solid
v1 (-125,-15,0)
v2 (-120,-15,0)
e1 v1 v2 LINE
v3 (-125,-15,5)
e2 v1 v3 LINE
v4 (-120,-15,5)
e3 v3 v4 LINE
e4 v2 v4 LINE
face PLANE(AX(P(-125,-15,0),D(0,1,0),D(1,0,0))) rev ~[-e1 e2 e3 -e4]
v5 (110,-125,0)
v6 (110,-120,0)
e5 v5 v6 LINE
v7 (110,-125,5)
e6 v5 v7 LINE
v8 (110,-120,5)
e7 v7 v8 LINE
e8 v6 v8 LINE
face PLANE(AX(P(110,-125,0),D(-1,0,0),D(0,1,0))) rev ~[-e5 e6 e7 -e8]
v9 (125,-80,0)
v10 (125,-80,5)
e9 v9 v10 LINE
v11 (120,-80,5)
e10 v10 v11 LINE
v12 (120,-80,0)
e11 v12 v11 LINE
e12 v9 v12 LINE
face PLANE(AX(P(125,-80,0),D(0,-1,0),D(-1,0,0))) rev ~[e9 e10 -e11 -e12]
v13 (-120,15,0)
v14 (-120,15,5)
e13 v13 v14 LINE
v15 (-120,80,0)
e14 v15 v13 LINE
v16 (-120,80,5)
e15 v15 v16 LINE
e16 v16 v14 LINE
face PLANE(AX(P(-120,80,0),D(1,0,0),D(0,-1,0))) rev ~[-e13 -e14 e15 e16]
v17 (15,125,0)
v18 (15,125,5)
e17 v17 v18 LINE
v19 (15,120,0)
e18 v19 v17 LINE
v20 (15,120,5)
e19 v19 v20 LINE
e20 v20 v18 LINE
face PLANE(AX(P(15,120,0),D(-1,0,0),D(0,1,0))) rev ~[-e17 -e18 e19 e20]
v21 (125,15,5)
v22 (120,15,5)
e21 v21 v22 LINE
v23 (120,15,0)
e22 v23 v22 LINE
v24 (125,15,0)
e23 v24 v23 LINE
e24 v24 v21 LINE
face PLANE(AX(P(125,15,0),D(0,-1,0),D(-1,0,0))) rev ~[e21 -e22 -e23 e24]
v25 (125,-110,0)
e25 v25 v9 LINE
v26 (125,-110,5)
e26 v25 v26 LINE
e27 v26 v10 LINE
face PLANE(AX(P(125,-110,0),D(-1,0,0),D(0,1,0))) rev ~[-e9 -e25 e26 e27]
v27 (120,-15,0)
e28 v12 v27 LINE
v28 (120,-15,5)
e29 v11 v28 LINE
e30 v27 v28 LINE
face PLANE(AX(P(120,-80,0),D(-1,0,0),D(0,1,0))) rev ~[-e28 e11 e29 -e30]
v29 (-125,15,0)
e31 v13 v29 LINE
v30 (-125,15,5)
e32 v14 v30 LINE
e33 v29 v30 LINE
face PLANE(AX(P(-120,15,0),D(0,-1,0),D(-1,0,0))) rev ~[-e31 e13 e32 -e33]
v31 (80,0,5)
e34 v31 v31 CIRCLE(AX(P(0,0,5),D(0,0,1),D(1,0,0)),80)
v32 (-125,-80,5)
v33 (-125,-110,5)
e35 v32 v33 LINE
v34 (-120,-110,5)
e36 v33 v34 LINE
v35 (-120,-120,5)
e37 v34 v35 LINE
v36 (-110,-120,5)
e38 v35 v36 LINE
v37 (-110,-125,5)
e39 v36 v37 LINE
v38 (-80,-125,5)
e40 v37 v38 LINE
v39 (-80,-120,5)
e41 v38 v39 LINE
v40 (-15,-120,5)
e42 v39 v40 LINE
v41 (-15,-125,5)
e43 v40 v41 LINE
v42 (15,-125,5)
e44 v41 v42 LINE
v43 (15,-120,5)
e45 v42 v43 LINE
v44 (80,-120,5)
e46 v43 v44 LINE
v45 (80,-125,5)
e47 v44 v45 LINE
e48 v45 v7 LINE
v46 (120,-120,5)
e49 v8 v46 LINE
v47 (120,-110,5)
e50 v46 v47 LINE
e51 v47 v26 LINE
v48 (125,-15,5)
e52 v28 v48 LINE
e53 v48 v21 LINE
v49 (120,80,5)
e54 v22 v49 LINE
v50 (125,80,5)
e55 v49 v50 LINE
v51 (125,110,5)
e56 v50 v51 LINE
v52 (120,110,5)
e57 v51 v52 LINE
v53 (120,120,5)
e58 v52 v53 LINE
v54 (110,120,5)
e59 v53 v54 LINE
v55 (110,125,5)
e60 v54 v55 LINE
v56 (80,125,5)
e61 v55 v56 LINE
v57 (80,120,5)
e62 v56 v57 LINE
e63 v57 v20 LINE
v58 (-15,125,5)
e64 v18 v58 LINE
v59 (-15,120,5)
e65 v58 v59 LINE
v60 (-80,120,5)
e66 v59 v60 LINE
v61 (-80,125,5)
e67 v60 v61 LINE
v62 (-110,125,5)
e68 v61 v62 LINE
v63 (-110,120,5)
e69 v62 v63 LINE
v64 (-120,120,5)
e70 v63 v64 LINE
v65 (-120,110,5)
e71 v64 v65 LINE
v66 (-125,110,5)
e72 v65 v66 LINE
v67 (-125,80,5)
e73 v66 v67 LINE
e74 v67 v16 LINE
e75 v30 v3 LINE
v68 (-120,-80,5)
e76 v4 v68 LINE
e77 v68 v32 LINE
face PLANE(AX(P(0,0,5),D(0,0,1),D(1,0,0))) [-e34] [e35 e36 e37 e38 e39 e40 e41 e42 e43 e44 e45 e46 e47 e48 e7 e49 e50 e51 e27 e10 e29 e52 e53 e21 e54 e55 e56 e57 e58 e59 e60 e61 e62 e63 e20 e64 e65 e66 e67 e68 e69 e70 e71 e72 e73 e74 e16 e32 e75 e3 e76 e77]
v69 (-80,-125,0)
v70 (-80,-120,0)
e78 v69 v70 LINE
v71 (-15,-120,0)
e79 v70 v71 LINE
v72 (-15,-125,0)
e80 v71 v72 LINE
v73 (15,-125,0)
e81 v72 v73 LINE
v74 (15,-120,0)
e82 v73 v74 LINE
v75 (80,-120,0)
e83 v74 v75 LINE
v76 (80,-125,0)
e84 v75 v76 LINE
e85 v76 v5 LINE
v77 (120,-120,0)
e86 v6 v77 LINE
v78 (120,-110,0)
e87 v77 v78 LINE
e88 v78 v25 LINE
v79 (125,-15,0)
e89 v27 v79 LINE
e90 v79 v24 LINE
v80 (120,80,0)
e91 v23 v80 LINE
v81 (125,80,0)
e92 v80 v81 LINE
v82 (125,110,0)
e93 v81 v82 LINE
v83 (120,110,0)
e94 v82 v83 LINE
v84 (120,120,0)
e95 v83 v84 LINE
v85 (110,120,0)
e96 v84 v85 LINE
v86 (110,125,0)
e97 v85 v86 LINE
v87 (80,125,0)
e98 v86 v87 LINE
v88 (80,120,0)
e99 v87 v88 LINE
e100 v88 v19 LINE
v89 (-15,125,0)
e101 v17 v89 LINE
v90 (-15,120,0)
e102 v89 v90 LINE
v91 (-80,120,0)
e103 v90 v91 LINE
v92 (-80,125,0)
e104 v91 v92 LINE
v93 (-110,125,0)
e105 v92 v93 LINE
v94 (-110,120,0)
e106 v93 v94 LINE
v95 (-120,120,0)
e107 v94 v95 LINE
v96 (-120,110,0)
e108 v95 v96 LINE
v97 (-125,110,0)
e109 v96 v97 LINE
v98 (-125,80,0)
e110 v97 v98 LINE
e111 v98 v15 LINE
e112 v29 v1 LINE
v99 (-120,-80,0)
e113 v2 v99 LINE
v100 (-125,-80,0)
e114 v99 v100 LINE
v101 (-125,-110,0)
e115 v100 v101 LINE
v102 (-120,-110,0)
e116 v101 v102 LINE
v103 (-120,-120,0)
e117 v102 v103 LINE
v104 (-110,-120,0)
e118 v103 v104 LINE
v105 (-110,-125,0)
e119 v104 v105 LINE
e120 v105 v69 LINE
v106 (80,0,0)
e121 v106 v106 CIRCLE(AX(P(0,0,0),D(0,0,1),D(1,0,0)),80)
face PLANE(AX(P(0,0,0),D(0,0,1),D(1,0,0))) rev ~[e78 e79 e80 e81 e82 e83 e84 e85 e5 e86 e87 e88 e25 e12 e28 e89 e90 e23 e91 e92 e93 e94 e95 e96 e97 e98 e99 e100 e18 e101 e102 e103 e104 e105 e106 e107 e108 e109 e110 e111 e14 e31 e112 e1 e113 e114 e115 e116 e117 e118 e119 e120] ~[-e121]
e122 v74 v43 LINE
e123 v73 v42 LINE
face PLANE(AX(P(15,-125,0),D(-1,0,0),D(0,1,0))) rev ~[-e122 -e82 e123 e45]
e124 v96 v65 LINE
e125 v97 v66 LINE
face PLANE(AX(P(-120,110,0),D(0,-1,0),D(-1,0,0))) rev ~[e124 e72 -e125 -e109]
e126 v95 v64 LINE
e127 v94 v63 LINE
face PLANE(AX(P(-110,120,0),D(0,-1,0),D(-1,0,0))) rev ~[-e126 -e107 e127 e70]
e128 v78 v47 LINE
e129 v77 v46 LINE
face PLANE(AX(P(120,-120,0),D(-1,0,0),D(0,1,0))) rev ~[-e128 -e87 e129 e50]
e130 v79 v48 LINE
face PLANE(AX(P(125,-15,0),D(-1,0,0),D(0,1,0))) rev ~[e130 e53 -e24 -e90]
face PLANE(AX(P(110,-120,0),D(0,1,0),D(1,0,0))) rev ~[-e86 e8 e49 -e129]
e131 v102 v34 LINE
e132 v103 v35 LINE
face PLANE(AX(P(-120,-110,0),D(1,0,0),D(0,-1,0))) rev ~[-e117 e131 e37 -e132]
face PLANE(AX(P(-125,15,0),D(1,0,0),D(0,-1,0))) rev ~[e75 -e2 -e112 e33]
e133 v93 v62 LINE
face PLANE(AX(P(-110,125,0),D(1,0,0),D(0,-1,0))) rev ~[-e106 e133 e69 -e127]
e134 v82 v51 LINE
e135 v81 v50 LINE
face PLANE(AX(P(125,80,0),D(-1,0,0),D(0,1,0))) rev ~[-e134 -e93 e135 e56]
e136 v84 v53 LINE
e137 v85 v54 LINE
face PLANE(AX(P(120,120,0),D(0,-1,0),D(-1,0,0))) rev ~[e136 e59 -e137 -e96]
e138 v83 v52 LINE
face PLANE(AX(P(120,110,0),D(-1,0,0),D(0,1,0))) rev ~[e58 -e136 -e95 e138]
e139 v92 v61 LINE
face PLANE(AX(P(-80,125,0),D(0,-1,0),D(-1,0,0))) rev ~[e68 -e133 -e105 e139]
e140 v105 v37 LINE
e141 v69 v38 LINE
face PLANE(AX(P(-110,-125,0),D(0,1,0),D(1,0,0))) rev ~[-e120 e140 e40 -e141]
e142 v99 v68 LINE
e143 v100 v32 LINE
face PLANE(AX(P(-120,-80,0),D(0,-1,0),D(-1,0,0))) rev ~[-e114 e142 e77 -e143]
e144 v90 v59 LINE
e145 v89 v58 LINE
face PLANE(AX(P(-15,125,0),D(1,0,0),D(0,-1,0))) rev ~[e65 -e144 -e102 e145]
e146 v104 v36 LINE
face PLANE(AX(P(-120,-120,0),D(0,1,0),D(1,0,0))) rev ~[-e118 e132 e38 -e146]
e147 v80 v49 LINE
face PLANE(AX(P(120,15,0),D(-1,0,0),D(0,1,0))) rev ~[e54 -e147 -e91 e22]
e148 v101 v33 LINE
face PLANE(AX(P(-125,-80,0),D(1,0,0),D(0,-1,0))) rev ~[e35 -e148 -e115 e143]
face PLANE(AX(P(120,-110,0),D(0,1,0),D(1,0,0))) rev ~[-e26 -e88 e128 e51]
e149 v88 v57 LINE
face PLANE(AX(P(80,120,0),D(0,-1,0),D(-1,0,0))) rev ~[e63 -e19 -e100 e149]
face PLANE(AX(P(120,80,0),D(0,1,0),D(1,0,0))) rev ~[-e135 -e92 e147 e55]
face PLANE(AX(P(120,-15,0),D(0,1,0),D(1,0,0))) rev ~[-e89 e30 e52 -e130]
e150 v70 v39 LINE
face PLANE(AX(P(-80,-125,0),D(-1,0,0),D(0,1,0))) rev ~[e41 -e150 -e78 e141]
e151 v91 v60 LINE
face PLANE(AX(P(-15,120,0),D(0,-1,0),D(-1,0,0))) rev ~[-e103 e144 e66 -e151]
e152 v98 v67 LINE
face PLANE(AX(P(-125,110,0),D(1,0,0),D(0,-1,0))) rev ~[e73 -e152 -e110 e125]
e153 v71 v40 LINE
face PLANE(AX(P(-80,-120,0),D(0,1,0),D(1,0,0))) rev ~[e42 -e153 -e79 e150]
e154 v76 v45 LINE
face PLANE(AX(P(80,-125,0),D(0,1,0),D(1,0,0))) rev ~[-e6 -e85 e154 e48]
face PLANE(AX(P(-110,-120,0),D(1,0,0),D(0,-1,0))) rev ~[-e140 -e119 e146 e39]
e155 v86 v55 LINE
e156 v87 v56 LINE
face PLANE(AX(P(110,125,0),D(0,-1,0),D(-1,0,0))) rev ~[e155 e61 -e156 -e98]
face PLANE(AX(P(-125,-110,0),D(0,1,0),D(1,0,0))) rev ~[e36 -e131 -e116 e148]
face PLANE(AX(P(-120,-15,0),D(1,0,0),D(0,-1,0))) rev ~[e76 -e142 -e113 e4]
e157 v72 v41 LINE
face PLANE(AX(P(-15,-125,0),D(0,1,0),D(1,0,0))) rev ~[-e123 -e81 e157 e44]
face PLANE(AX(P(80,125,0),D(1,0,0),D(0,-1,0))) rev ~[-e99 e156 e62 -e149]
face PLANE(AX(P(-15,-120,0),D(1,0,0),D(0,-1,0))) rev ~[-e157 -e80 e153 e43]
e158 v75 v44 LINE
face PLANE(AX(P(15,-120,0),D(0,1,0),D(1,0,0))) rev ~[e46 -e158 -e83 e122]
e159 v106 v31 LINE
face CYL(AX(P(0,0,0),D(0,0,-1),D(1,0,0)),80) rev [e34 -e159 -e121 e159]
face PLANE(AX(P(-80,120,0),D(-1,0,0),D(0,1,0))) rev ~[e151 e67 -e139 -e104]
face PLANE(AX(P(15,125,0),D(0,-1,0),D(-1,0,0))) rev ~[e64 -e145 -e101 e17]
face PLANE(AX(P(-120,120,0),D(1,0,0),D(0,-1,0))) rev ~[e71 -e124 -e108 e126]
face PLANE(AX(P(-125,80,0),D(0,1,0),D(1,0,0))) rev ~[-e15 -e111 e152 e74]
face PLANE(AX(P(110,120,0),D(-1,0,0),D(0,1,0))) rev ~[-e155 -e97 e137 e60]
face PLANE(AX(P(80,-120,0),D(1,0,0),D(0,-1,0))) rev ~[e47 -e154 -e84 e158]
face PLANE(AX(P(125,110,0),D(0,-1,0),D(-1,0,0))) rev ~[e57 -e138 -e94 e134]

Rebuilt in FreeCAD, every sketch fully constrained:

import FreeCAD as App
import Part
import Sketcher

V = App.Vector
Q = App.Units.Quantity

doc = App.newDocument("Part")
params = doc.addObject("Spreadsheet::Sheet", "Params")
for row, (alias, value) in enumerate([
    ("sketch1_diameter", "160 mm"),
    ("sketch1_width", "10 mm"),
    ("sketch1_width2", "5 mm"),
    ("sketch1_width3", "30 mm"),
    ("sketch1_width4", "65 mm"),
    ("pad1_length", "5 mm"),
], start=1):
    params.set(f"A{row}", alias)
    params.set(f"B{row}", "=" + value)
    params.setAlias(f"B{row}", alias)

body = doc.addObject("PartDesign::Body", "Body")

# Sketch on XY plane
sketch1 = body.newObject("Sketcher::SketchObject", "Sketch")
sketch1.AttachmentSupport = (doc.getObject("XY_Plane"), [""])
sketch1.MapMode = "FlatFace"
sketch1.addGeometry(Part.LineSegment(V(-110, 120, 0), V(-120, 120, 0)), False)
sketch1.addGeometry(Part.LineSegment(V(-120, 120, 0), V(-120, 110, 0)), False)
sketch1.addGeometry(Part.LineSegment(V(-120, 110, 0), V(-125, 110, 0)), False)
sketch1.addGeometry(Part.LineSegment(V(-125, 110, 0), V(-125, 80, 0)), False)
sketch1.addGeometry(Part.LineSegment(V(-125, 80, 0), V(-120, 80, 0)), False)
sketch1.addGeometry(Part.LineSegment(V(-120, 80, 0), V(-120, 15, 0)), False)
sketch1.addGeometry(Part.LineSegment(V(-120, 15, 0), V(-125, 15, 0)), False)
sketch1.addGeometry(Part.LineSegment(V(-125, 15, 0), V(-125, -15, 0)), False)
sketch1.addGeometry(Part.LineSegment(V(-125, -15, 0), V(-120, -15, 0)), False)
sketch1.addGeometry(Part.LineSegment(V(-120, -15, 0), V(-120, -80, 0)), False)
sketch1.addGeometry(Part.LineSegment(V(-120, -80, 0), V(-125, -80, 0)), False)
sketch1.addGeometry(Part.LineSegment(V(-125, -80, 0), V(-125, -110, 0)), False)
sketch1.addGeometry(Part.LineSegment(V(-125, -110, 0), V(-120, -110, 0)), False)
sketch1.addGeometry(Part.LineSegment(V(-120, -110, 0), V(-120, -120, 0)), False)
sketch1.addGeometry(Part.LineSegment(V(-120, -120, 0), V(-110, -120, 0)), False)
sketch1.addGeometry(Part.LineSegment(V(-110, -120, 0), V(-110, -125, 0)), False)
sketch1.addGeometry(Part.LineSegment(V(-110, -125, 0), V(-80, -125, 0)), False)
sketch1.addGeometry(Part.LineSegment(V(-80, -125, 0), V(-80, -120, 0)), False)
sketch1.addGeometry(Part.LineSegment(V(-80, -120, 0), V(-15, -120, 0)), False)
sketch1.addGeometry(Part.LineSegment(V(-15, -120, 0), V(-15, -125, 0)), False)
sketch1.addGeometry(Part.LineSegment(V(-15, -125, 0), V(15, -125, 0)), False)
sketch1.addGeometry(Part.LineSegment(V(15, -125, 0), V(15, -120, 0)), False)
sketch1.addGeometry(Part.LineSegment(V(15, -120, 0), V(80, -120, 0)), False)
sketch1.addGeometry(Part.LineSegment(V(80, -120, 0), V(80, -125, 0)), False)
sketch1.addGeometry(Part.LineSegment(V(80, -125, 0), V(110, -125, 0)), False)
sketch1.addGeometry(Part.LineSegment(V(110, -125, 0), V(110, -120, 0)), False)
sketch1.addGeometry(Part.LineSegment(V(110, -120, 0), V(120, -120, 0)), False)
sketch1.addGeometry(Part.LineSegment(V(120, -120, 0), V(120, -110, 0)), False)
sketch1.addGeometry(Part.LineSegment(V(120, -110, 0), V(125, -110, 0)), False)
sketch1.addGeometry(Part.LineSegment(V(125, -110, 0), V(125, -80, 0)), False)
sketch1.addGeometry(Part.LineSegment(V(125, -80, 0), V(120, -80, 0)), False)
sketch1.addGeometry(Part.LineSegment(V(120, -80, 0), V(120, -15, 0)), False)
sketch1.addGeometry(Part.LineSegment(V(120, -15, 0), V(125, -15, 0)), False)
sketch1.addGeometry(Part.LineSegment(V(125, -15, 0), V(125, 15, 0)), False)
sketch1.addGeometry(Part.LineSegment(V(125, 15, 0), V(120, 15, 0)), False)
sketch1.addGeometry(Part.LineSegment(V(120, 15, 0), V(120, 80, 0)), False)
sketch1.addGeometry(Part.LineSegment(V(120, 80, 0), V(125, 80, 0)), False)
sketch1.addGeometry(Part.LineSegment(V(125, 80, 0), V(125, 110, 0)), False)
sketch1.addGeometry(Part.LineSegment(V(125, 110, 0), V(120, 110, 0)), False)
sketch1.addGeometry(Part.LineSegment(V(120, 110, 0), V(120, 120, 0)), False)
sketch1.addGeometry(Part.LineSegment(V(120, 120, 0), V(110, 120, 0)), False)
sketch1.addGeometry(Part.LineSegment(V(110, 120, 0), V(110, 125, 0)), False)
sketch1.addGeometry(Part.LineSegment(V(110, 125, 0), V(80, 125, 0)), False)
sketch1.addGeometry(Part.LineSegment(V(80, 125, 0), V(80, 120, 0)), False)
sketch1.addGeometry(Part.LineSegment(V(80, 120, 0), V(15, 120, 0)), False)
sketch1.addGeometry(Part.LineSegment(V(15, 120, 0), V(15, 125, 0)), False)
sketch1.addGeometry(Part.LineSegment(V(15, 125, 0), V(-15, 125, 0)), False)
sketch1.addGeometry(Part.LineSegment(V(-15, 125, 0), V(-15, 120, 0)), False)
sketch1.addGeometry(Part.LineSegment(V(-15, 120, 0), V(-80, 120, 0)), False)
sketch1.addGeometry(Part.LineSegment(V(-80, 120, 0), V(-80, 125, 0)), False)
sketch1.addGeometry(Part.LineSegment(V(-80, 125, 0), V(-110, 125, 0)), False)
sketch1.addGeometry(Part.LineSegment(V(-110, 125, 0), V(-110, 120, 0)), False)
sketch1.addGeometry(Part.Circle(V(0, 0, 0), V(0, 0, 1), 80), False)
sketch1.addConstraint(Sketcher.Constraint("Coincident", 0, 2, 1, 1))
sketch1.addConstraint(Sketcher.Constraint("Coincident", 1, 2, 2, 1))
sketch1.addConstraint(Sketcher.Constraint("Coincident", 2, 2, 3, 1))
sketch1.addConstraint(Sketcher.Constraint("Coincident", 3, 2, 4, 1))
sketch1.addConstraint(Sketcher.Constraint("Coincident", 4, 2, 5, 1))
sketch1.addConstraint(Sketcher.Constraint("Coincident", 5, 2, 6, 1))
sketch1.addConstraint(Sketcher.Constraint("Coincident", 6, 2, 7, 1))
sketch1.addConstraint(Sketcher.Constraint("Coincident", 7, 2, 8, 1))
sketch1.addConstraint(Sketcher.Constraint("Coincident", 8, 2, 9, 1))
sketch1.addConstraint(Sketcher.Constraint("Coincident", 9, 2, 10, 1))
sketch1.addConstraint(Sketcher.Constraint("Coincident", 10, 2, 11, 1))
sketch1.addConstraint(Sketcher.Constraint("Coincident", 11, 2, 12, 1))
sketch1.addConstraint(Sketcher.Constraint("Coincident", 12, 2, 13, 1))
sketch1.addConstraint(Sketcher.Constraint("Coincident", 13, 2, 14, 1))
sketch1.addConstraint(Sketcher.Constraint("Coincident", 14, 2, 15, 1))
sketch1.addConstraint(Sketcher.Constraint("Coincident", 15, 2, 16, 1))
sketch1.addConstraint(Sketcher.Constraint("Coincident", 16, 2, 17, 1))
sketch1.addConstraint(Sketcher.Constraint("Coincident", 17, 2, 18, 1))
sketch1.addConstraint(Sketcher.Constraint("Coincident", 18, 2, 19, 1))
sketch1.addConstraint(Sketcher.Constraint("Coincident", 19, 2, 20, 1))
sketch1.addConstraint(Sketcher.Constraint("Coincident", 20, 2, 21, 1))
sketch1.addConstraint(Sketcher.Constraint("Coincident", 21, 2, 22, 1))
sketch1.addConstraint(Sketcher.Constraint("Coincident", 22, 2, 23, 1))
sketch1.addConstraint(Sketcher.Constraint("Coincident", 23, 2, 24, 1))
sketch1.addConstraint(Sketcher.Constraint("Coincident", 24, 2, 25, 1))
sketch1.addConstraint(Sketcher.Constraint("Coincident", 25, 2, 26, 1))
sketch1.addConstraint(Sketcher.Constraint("Coincident", 26, 2, 27, 1))
sketch1.addConstraint(Sketcher.Constraint("Coincident", 27, 2, 28, 1))
sketch1.addConstraint(Sketcher.Constraint("Coincident", 28, 2, 29, 1))
sketch1.addConstraint(Sketcher.Constraint("Coincident", 29, 2, 30, 1))
sketch1.addConstraint(Sketcher.Constraint("Coincident", 30, 2, 31, 1))
sketch1.addConstraint(Sketcher.Constraint("Coincident", 31, 2, 32, 1))
sketch1.addConstraint(Sketcher.Constraint("Coincident", 32, 2, 33, 1))
sketch1.addConstraint(Sketcher.Constraint("Coincident", 33, 2, 34, 1))
sketch1.addConstraint(Sketcher.Constraint("Coincident", 34, 2, 35, 1))
sketch1.addConstraint(Sketcher.Constraint("Coincident", 35, 2, 36, 1))
sketch1.addConstraint(Sketcher.Constraint("Coincident", 36, 2, 37, 1))
sketch1.addConstraint(Sketcher.Constraint("Coincident", 37, 2, 38, 1))
sketch1.addConstraint(Sketcher.Constraint("Coincident", 38, 2, 39, 1))
sketch1.addConstraint(Sketcher.Constraint("Coincident", 39, 2, 40, 1))
sketch1.addConstraint(Sketcher.Constraint("Coincident", 40, 2, 41, 1))
sketch1.addConstraint(Sketcher.Constraint("Coincident", 41, 2, 42, 1))
sketch1.addConstraint(Sketcher.Constraint("Coincident", 42, 2, 43, 1))
sketch1.addConstraint(Sketcher.Constraint("Coincident", 43, 2, 44, 1))
sketch1.addConstraint(Sketcher.Constraint("Coincident", 44, 2, 45, 1))
sketch1.addConstraint(Sketcher.Constraint("Coincident", 45, 2, 46, 1))
sketch1.addConstraint(Sketcher.Constraint("Coincident", 46, 2, 47, 1))
sketch1.addConstraint(Sketcher.Constraint("Coincident", 47, 2, 48, 1))
sketch1.addConstraint(Sketcher.Constraint("Coincident", 48, 2, 49, 1))
sketch1.addConstraint(Sketcher.Constraint("Coincident", 49, 2, 50, 1))
sketch1.addConstraint(Sketcher.Constraint("Coincident", 50, 2, 51, 1))
sketch1.addConstraint(Sketcher.Constraint("Coincident", 51, 2, 0, 1))
sketch1.addConstraint(Sketcher.Constraint("Horizontal", 0))
sketch1.addConstraint(Sketcher.Constraint("Vertical", 1))
sketch1.addConstraint(Sketcher.Constraint("Horizontal", 2))
sketch1.addConstraint(Sketcher.Constraint("Vertical", 3))
sketch1.addConstraint(Sketcher.Constraint("Horizontal", 4))
sketch1.addConstraint(Sketcher.Constraint("Vertical", 5))
sketch1.addConstraint(Sketcher.Constraint("Horizontal", 6))
sketch1.addConstraint(Sketcher.Constraint("Vertical", 7))
sketch1.addConstraint(Sketcher.Constraint("Horizontal", 8))
sketch1.addConstraint(Sketcher.Constraint("Vertical", 9))
sketch1.addConstraint(Sketcher.Constraint("Horizontal", 10))
sketch1.addConstraint(Sketcher.Constraint("Vertical", 11))
sketch1.addConstraint(Sketcher.Constraint("Horizontal", 12))
sketch1.addConstraint(Sketcher.Constraint("Vertical", 13))
sketch1.addConstraint(Sketcher.Constraint("Horizontal", 14))
sketch1.addConstraint(Sketcher.Constraint("Vertical", 15))
sketch1.addConstraint(Sketcher.Constraint("Horizontal", 16))
sketch1.addConstraint(Sketcher.Constraint("Vertical", 17))
sketch1.addConstraint(Sketcher.Constraint("Horizontal", 18))
sketch1.addConstraint(Sketcher.Constraint("Vertical", 19))
sketch1.addConstraint(Sketcher.Constraint("Horizontal", 20))
sketch1.addConstraint(Sketcher.Constraint("Vertical", 21))
sketch1.addConstraint(Sketcher.Constraint("Horizontal", 22))
sketch1.addConstraint(Sketcher.Constraint("Vertical", 23))
sketch1.addConstraint(Sketcher.Constraint("Horizontal", 24))
sketch1.addConstraint(Sketcher.Constraint("Vertical", 25))
sketch1.addConstraint(Sketcher.Constraint("Horizontal", 26))
sketch1.addConstraint(Sketcher.Constraint("Vertical", 27))
sketch1.addConstraint(Sketcher.Constraint("Horizontal", 28))
sketch1.addConstraint(Sketcher.Constraint("Vertical", 29))
sketch1.addConstraint(Sketcher.Constraint("Horizontal", 30))
sketch1.addConstraint(Sketcher.Constraint("Vertical", 31))
sketch1.addConstraint(Sketcher.Constraint("Horizontal", 32))
sketch1.addConstraint(Sketcher.Constraint("Vertical", 33))
sketch1.addConstraint(Sketcher.Constraint("Horizontal", 34))
sketch1.addConstraint(Sketcher.Constraint("Vertical", 35))
sketch1.addConstraint(Sketcher.Constraint("Horizontal", 36))
sketch1.addConstraint(Sketcher.Constraint("Vertical", 37))
sketch1.addConstraint(Sketcher.Constraint("Horizontal", 38))
sketch1.addConstraint(Sketcher.Constraint("Vertical", 39))
sketch1.addConstraint(Sketcher.Constraint("Horizontal", 40))
sketch1.addConstraint(Sketcher.Constraint("Vertical", 41))
sketch1.addConstraint(Sketcher.Constraint("Horizontal", 42))
sketch1.addConstraint(Sketcher.Constraint("Vertical", 43))
sketch1.addConstraint(Sketcher.Constraint("Horizontal", 44))
sketch1.addConstraint(Sketcher.Constraint("Vertical", 45))
sketch1.addConstraint(Sketcher.Constraint("Horizontal", 46))
sketch1.addConstraint(Sketcher.Constraint("Vertical", 47))
sketch1.addConstraint(Sketcher.Constraint("Horizontal", 48))
sketch1.addConstraint(Sketcher.Constraint("Vertical", 49))
sketch1.addConstraint(Sketcher.Constraint("Horizontal", 50))
sketch1.addConstraint(Sketcher.Constraint("Vertical", 51))
sketch1.addConstraint(Sketcher.Constraint("Coincident", 52, 3, -1, 1))
sketch1.addConstraint(Sketcher.Constraint("Symmetric", 0, 2, 26, 2, -1, 1))
sketch1.addConstraint(Sketcher.Constraint("Symmetric", 2, 2, 28, 2, -1, 1))
sketch1.addConstraint(Sketcher.Constraint("Symmetric", 4, 2, 30, 2, -1, 1))
sketch1.addConstraint(Sketcher.Constraint("Symmetric", 6, 2, 32, 2, -1, 1))
sketch1.addConstraint(Sketcher.Constraint("Symmetric", 8, 2, 34, 2, -1, 1))
sketch1.addConstraint(Sketcher.Constraint("Symmetric", 10, 2, 36, 2, -1, 1))
sketch1.addConstraint(Sketcher.Constraint("Symmetric", 12, 2, 38, 2, -1, 1))
sketch1.addConstraint(Sketcher.Constraint("Symmetric", 14, 2, 40, 2, -1, 1))
sketch1.addConstraint(Sketcher.Constraint("Symmetric", 16, 2, 42, 2, -1, 1))
sketch1.addConstraint(Sketcher.Constraint("Symmetric", 18, 2, 44, 2, -1, 1))
sketch1.addConstraint(Sketcher.Constraint("Symmetric", 20, 2, 46, 2, -1, 1))
sketch1.addConstraint(Sketcher.Constraint("Symmetric", 22, 2, 48, 2, -1, 1))
sketch1.addConstraint(Sketcher.Constraint("Symmetric", 24, 2, 50, 2, -1, 1))
sketch1.addConstraint(Sketcher.Constraint("Symmetric", 18, 2, 21, 2, -2))
sketch1.addConstraint(Sketcher.Constraint("Symmetric", 16, 2, 23, 2, -2))
sketch1.addConstraint(Sketcher.Constraint("Symmetric", 14, 2, 25, 2, -2))
sketch1.addConstraint(Sketcher.Constraint("Symmetric", 12, 2, 27, 2, -2))
sketch1.addConstraint(Sketcher.Constraint("Symmetric", 10, 2, 29, 2, -2))
sketch1.addConstraint(Sketcher.Constraint("Symmetric", 8, 2, 31, 2, -2))
sketch1.addConstraint(Sketcher.Constraint("Horizontal", 14, 2, 17, 2))
sketch1.addConstraint(Sketcher.Constraint("Horizontal", 16, 2, 19, 2))
sketch1.addConstraint(Sketcher.Constraint("Vertical", 1, 2, 4, 2))
sketch1.addConstraint(Sketcher.Constraint("Vertical", 3, 2, 6, 2))
sketch1.addConstraint(Sketcher.Constraint("Equal", 16, 20))
sketch1.addConstraint(Sketcher.Constraint("Equal", 40, 1))
sketch1.addConstraint(Sketcher.Constraint("Equal", 50, 3))
sketch1.addConstraint(Sketcher.Constraint("Equal", 48, 5))
sketch1.addConstraint(Sketcher.Constraint("Equal", 3, 7))
sketch1.addConstraint(Sketcher.Constraint("Equal", 38, 15))
sketch1.addConstraint(Sketcher.Constraint("Diameter", 52, Q("160 mm")))
sketch1.addConstraint(Sketcher.Constraint("DistanceX", 0, 2, 0, 1, Q("10 mm")))
sketch1.addConstraint(Sketcher.Constraint("DistanceX", 2, 2, 2, 1, Q("5 mm")))
sketch1.addConstraint(Sketcher.Constraint("DistanceX", 16, 1, 16, 2, Q("30 mm")))
sketch1.addConstraint(Sketcher.Constraint("DistanceX", 18, 1, 18, 2, Q("65 mm")))
sketch1.setExpression("Constraints[134]", "Params.sketch1_diameter")
sketch1.setExpression("Constraints[135]", "Params.sketch1_width")
sketch1.setExpression("Constraints[136]", "Params.sketch1_width2")
sketch1.setExpression("Constraints[137]", "Params.sketch1_width3")
sketch1.setExpression("Constraints[138]", "Params.sketch1_width4")
pad1 = body.newObject("PartDesign::Pad", "Pad")
pad1.Profile = sketch1
pad1.setExpression("Length", "Params.pad1_length")

doc.recompute()
